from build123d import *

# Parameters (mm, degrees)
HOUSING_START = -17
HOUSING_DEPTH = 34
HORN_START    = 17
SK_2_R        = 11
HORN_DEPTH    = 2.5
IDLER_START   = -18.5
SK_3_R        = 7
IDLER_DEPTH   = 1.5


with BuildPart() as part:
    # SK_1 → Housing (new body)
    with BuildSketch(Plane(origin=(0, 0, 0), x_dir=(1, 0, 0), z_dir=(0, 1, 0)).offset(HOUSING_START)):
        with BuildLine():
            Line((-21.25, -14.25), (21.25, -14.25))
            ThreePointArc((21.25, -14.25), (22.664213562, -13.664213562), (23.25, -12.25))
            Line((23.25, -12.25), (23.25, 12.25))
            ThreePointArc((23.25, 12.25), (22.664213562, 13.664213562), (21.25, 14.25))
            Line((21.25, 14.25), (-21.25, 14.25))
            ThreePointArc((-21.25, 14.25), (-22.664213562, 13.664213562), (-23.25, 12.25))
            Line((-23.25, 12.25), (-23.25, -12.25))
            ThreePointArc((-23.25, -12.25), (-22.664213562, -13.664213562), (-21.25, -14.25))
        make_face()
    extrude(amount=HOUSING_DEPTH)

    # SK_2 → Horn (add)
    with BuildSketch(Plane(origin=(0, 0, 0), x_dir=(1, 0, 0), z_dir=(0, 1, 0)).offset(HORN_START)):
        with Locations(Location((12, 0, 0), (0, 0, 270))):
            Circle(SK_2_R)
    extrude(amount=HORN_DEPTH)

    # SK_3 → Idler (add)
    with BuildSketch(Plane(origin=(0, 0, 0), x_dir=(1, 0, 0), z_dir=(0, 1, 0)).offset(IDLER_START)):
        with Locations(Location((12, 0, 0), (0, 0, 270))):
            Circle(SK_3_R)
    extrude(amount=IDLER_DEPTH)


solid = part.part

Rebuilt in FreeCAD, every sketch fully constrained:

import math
import FreeCAD as App
import Part
import Sketcher

doc = App.newDocument("Part")
params = doc.addObject("Spreadsheet::Sheet", "Params")
for row, (alias, value) in enumerate([
    ("sketch1_radius", "2 mm"),
    ("sketch1_width", "42.5 mm"),
    ("sketch1_height", "24.5 mm"),
    ("pad1_length", "34 mm"),
    ("sketch2_diameter", "22 mm"),
    ("pad2_length", "2.5 mm"),
    ("sketch3_diameter", "14 mm"),
    ("pad3_length", "1.5 mm"),
], start=1):
    params.set(f"A{row}", alias)
    params.set(f"B{row}", "=" + value)
    params.setAlias(f"B{row}", alias)

body = doc.addObject("PartDesign::Body", "Body")

sketch1 = body.newObject("Sketcher::SketchObject", "Sketch")
sketch1.AttachmentSupport = (doc.getObject("XZ_Plane"), [""])
sketch1.MapMode = "FlatFace"
sketch1.AttachmentOffset = App.Placement(App.Vector(0, 0, 17), App.Rotation())
sketch1.addGeometry(Part.LineSegment(App.Vector(-21.25, 14.25, 0), App.Vector(21.25, 14.25, 0)), False)
sketch1.addGeometry(Part.ArcOfCircle(Part.Circle(App.Vector(21.25, 12.25, 0), App.Vector(0, 0, 1), 2), math.radians(0), math.radians(90)), False)
sketch1.addGeometry(Part.LineSegment(App.Vector(23.25, 12.25, 0), App.Vector(23.25, -12.25, 0)), False)
sketch1.addGeometry(Part.ArcOfCircle(Part.Circle(App.Vector(21.25, -12.25, 0), App.Vector(0, 0, 1), 2), math.radians(-90), math.radians(0)), False)
sketch1.addGeometry(Part.LineSegment(App.Vector(21.25, -14.25, 0), App.Vector(-21.25, -14.25, 0)), False)
sketch1.addGeometry(Part.ArcOfCircle(Part.Circle(App.Vector(-21.25, -12.25, 0), App.Vector(0, 0, 1), 2), math.radians(-180), math.radians(-90)), False)
sketch1.addGeometry(Part.LineSegment(App.Vector(-23.25, -12.25, 0), App.Vector(-23.25, 12.25, 0)), False)
sketch1.addGeometry(Part.ArcOfCircle(Part.Circle(App.Vector(-21.25, 12.25, 0), App.Vector(0, 0, 1), 2), math.radians(90), math.radians(180)), False)
sketch1.addConstraint(Sketcher.Constraint("Tangent", 0, 2, 1, 2))
sketch1.addConstraint(Sketcher.Constraint("Tangent", 1, 1, 2, 1))
sketch1.addConstraint(Sketcher.Constraint("Tangent", 2, 2, 3, 2))
sketch1.addConstraint(Sketcher.Constraint("Tangent", 3, 1, 4, 1))
sketch1.addConstraint(Sketcher.Constraint("Tangent", 4, 2, 5, 2))
sketch1.addConstraint(Sketcher.Constraint("Tangent", 5, 1, 6, 1))
sketch1.addConstraint(Sketcher.Constraint("Tangent", 6, 2, 7, 2))
sketch1.addConstraint(Sketcher.Constraint("Tangent", 7, 1, 0, 1))
sketch1.addConstraint(Sketcher.Constraint("Horizontal", 0))
sketch1.addConstraint(Sketcher.Constraint("Vertical", 2))
sketch1.addConstraint(Sketcher.Constraint("Horizontal", 4))
sketch1.addConstraint(Sketcher.Constraint("Vertical", 6))
sketch1.addConstraint(Sketcher.Constraint("Equal", 1, 3))
sketch1.addConstraint(Sketcher.Constraint("Equal", 3, 5))
sketch1.addConstraint(Sketcher.Constraint("Equal", 5, 7))
sketch1.addConstraint(Sketcher.Constraint("Symmetric", 1, 3, 5, 3, -1, 1))
sketch1.addConstraint(Sketcher.Constraint("Radius", 1, 2.0))
sketch1.addConstraint(Sketcher.Constraint("DistanceX", 0, 1, 0, 2, 42.5))
sketch1.addConstraint(Sketcher.Constraint("DistanceY", 2, 2, 2, 1, 24.5))
sketch1.setExpression("Constraints[16]", "Params.sketch1_radius")
sketch1.setExpression("Constraints[17]", "Params.sketch1_width")
sketch1.setExpression("Constraints[18]", "Params.sketch1_height")
pad1 = body.newObject("PartDesign::Pad", "Pad")
pad1.Profile = sketch1
pad1.setExpression("Length", "Params.pad1_length")
pad1.Reversed = True

sketch2 = body.newObject("Sketcher::SketchObject", "Sketch001")
sketch2.AttachmentSupport = (doc.getObject("XZ_Plane"), [""])
sketch2.MapMode = "FlatFace"
sketch2.AttachmentOffset = App.Placement(App.Vector(0, 0, -17), App.Rotation())
sketch2.addGeometry(Part.Circle(App.Vector(12, 0, 0), App.Vector(0, 0, 1), 11), False)
sketch2.addConstraint(Sketcher.Constraint("PointOnObject", 0, 3, -1))
sketch2.addConstraint(Sketcher.Constraint("Diameter", 0, 22.0))
sketch2.addConstraint(Sketcher.Constraint("DistanceX", -1, 1, 0, 3, 12.0))
sketch2.setExpression("Constraints[1]", "Params.sketch2_diameter")
pad2 = body.newObject("PartDesign::Pad", "Pad001")
pad2.Profile = sketch2
pad2.setExpression("Length", "Params.pad2_length")
pad2.Reversed = True

sketch3 = body.newObject("Sketcher::SketchObject", "Sketch002")
sketch3.AttachmentSupport = (doc.getObject("XZ_Plane"), [""])
sketch3.MapMode = "FlatFace"
sketch3.AttachmentOffset = App.Placement(App.Vector(0, 0, 18.5), App.Rotation())
sketch3.addGeometry(Part.Circle(App.Vector(12, 0, 0), App.Vector(0, 0, 1), 7), False)
sketch3.addConstraint(Sketcher.Constraint("PointOnObject", 0, 3, -1))
sketch3.addConstraint(Sketcher.Constraint("Diameter", 0, 14.0))
sketch3.addConstraint(Sketcher.Constraint("DistanceX", -1, 1, 0, 3, 12.0))
sketch3.setExpression("Constraints[1]", "Params.sketch3_diameter")
pad3 = body.newObject("PartDesign::Pad", "Pad002")
pad3.Profile = sketch3
pad3.setExpression("Length", "Params.pad3_length")
pad3.Reversed = True

doc.recompute()
